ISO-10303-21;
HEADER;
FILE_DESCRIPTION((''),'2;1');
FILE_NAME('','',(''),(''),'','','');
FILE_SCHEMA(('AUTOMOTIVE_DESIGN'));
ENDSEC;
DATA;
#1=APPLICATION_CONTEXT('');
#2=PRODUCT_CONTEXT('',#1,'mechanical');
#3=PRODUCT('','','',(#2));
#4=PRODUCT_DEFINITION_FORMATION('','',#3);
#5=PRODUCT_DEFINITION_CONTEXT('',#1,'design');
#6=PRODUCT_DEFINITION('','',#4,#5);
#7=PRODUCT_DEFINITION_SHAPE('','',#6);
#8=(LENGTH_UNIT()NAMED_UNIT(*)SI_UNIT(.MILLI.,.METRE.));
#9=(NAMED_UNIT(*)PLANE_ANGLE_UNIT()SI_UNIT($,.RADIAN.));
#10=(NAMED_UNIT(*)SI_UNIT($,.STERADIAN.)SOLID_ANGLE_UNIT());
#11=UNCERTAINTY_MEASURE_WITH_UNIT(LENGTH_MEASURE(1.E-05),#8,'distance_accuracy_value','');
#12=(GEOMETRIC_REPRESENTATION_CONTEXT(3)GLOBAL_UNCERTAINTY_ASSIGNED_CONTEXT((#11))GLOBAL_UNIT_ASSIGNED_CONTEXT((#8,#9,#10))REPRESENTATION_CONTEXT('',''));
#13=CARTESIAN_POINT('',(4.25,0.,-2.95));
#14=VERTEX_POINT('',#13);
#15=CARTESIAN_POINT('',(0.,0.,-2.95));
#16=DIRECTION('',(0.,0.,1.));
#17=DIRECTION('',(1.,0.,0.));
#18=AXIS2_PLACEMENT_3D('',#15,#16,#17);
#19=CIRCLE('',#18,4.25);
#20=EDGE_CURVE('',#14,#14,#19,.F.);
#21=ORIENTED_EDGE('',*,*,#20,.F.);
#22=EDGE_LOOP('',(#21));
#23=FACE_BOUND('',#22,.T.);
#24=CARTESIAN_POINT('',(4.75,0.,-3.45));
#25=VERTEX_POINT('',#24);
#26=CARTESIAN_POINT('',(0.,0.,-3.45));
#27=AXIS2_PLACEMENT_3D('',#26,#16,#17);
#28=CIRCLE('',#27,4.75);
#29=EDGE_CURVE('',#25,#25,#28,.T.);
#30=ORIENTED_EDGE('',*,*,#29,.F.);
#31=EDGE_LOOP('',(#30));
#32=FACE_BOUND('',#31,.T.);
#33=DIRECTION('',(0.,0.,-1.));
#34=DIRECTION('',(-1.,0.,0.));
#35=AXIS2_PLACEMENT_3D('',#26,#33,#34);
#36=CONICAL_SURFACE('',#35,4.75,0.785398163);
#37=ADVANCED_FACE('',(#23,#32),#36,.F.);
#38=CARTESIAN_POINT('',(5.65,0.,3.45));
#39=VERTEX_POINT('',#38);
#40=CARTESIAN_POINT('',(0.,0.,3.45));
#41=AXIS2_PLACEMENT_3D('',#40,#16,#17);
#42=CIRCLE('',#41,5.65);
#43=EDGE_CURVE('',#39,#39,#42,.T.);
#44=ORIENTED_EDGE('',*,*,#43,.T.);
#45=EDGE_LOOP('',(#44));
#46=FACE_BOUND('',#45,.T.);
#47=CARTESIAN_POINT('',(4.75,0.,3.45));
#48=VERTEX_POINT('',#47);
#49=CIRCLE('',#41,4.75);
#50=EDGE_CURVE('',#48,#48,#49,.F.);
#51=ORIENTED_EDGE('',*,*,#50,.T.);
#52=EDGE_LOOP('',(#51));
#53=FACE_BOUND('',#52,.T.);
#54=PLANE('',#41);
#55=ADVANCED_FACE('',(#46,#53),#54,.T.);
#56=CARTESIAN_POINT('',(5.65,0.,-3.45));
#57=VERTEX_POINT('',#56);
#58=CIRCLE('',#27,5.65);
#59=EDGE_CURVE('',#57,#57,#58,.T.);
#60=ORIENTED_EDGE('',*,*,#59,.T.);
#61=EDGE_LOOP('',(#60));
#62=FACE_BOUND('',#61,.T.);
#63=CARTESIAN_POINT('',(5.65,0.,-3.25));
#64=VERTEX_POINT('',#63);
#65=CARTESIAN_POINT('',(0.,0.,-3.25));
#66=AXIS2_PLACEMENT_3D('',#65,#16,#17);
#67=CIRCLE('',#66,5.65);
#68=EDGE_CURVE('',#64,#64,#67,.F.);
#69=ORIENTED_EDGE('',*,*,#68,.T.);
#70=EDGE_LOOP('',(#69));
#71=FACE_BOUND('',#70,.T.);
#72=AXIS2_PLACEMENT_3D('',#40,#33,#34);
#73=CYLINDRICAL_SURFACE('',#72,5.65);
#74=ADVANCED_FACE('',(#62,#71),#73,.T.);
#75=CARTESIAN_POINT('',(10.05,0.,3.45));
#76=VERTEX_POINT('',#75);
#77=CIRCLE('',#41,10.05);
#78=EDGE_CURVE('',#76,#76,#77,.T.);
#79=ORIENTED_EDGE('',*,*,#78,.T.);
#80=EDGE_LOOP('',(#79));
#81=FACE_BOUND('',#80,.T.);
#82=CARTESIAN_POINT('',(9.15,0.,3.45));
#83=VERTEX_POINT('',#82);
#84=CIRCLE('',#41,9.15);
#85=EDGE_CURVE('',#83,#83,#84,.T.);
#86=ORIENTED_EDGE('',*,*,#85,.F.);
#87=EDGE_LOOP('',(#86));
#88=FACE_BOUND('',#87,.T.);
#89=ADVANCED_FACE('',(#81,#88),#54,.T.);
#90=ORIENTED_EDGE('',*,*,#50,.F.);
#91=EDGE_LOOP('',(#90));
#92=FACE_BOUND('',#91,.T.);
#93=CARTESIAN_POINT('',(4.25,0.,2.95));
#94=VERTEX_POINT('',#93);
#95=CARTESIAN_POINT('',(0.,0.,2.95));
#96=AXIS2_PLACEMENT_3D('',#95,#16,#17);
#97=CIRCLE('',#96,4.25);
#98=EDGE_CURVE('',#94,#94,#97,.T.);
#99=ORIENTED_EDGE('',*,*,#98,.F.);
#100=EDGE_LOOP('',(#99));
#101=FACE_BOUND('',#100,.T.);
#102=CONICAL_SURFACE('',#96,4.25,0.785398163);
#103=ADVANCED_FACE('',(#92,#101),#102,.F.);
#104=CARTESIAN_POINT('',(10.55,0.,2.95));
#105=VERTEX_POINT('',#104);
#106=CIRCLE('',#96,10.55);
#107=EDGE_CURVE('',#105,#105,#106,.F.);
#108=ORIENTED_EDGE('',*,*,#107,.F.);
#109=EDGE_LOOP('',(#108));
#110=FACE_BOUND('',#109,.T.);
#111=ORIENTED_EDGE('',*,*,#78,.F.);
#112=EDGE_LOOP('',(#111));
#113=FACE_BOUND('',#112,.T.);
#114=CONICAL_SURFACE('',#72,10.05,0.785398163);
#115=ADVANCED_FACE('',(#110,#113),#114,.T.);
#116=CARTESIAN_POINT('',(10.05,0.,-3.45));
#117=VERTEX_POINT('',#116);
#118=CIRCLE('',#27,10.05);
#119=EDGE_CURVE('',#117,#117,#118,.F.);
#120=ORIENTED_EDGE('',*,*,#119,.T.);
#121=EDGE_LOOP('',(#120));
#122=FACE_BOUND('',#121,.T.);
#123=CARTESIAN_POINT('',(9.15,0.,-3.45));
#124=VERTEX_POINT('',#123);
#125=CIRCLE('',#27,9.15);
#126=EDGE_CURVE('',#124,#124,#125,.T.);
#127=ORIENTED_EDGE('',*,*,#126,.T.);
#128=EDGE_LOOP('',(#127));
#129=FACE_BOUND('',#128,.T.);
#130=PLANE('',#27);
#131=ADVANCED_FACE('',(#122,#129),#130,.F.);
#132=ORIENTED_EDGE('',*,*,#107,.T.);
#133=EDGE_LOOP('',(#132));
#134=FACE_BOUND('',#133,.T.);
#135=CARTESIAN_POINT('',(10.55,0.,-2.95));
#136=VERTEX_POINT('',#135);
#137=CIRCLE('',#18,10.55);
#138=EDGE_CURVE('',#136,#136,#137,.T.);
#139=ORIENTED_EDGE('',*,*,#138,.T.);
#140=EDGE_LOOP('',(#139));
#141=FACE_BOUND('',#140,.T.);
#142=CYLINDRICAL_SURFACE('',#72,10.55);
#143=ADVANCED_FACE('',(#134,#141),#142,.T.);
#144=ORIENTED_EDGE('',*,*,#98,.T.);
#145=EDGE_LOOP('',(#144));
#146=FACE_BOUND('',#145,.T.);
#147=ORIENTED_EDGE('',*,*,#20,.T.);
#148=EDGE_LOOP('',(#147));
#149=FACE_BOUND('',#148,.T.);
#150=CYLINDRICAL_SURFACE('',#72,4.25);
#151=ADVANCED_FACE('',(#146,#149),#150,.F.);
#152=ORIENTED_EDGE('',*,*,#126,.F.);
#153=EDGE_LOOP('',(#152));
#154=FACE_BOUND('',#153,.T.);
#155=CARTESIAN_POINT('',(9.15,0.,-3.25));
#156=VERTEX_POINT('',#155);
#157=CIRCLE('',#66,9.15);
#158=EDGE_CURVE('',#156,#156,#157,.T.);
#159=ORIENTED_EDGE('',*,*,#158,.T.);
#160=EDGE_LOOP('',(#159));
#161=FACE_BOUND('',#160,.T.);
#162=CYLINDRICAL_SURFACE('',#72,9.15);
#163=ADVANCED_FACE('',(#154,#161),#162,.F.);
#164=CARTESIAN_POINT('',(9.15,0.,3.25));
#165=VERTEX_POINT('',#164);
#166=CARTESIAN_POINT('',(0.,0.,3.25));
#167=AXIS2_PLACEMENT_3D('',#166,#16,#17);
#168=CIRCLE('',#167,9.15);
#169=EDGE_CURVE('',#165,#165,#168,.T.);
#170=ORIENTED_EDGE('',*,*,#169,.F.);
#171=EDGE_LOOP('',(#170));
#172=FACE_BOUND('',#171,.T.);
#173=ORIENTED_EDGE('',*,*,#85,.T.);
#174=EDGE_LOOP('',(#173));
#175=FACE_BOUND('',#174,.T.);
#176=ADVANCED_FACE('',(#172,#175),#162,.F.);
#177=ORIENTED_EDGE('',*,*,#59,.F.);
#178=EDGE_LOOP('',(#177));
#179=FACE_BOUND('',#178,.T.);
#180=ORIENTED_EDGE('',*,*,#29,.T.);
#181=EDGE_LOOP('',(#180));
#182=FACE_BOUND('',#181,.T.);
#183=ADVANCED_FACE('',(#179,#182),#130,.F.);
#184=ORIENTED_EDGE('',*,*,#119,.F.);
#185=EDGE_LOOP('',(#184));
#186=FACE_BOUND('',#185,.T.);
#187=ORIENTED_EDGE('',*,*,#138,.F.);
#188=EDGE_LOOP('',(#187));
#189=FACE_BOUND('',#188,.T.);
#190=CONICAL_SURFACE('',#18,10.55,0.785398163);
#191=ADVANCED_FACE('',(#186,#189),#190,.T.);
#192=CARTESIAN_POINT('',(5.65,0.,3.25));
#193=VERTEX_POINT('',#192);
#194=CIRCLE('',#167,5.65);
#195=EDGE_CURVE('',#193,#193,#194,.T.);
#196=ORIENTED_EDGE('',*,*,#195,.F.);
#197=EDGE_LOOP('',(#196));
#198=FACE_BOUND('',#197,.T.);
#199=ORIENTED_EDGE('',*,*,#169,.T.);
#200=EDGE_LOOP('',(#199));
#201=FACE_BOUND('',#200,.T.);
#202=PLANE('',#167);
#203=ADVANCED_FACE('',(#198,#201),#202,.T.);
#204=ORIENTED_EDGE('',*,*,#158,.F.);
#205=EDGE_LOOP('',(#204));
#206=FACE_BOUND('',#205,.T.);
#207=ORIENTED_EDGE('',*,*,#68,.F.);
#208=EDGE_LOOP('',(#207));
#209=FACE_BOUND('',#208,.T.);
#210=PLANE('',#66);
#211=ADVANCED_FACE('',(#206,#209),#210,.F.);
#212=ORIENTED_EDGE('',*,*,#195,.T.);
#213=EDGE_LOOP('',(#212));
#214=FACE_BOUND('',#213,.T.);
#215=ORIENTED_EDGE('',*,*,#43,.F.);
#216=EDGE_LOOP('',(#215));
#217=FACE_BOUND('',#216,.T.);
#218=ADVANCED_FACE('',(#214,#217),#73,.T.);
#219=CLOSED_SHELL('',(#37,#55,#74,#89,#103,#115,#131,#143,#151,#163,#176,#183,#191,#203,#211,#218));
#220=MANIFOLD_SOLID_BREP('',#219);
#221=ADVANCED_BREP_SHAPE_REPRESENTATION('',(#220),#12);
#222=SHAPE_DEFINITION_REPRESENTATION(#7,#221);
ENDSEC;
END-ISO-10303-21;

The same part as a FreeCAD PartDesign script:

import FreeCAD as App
import Part
import Sketcher

V = App.Vector


def edges_at(feature, points):
    """Names of the edges that pass closest to the given points."""
    edges = feature.Shape.Edges
    near = lambda p: min(range(len(edges)), key=lambda i: edges[i].distToShape(Part.Vertex(*p))[0])
    return sorted({f"Edge{near(p) + 1}" for p in points})

doc = App.newDocument("Part")
body = doc.addObject("PartDesign::Body", "Body")

sketch1 = doc.addObject("Sketcher::SketchObject", "Sketch")
body.addObject(sketch1)
sketch1.AttachmentSupport = (doc.XY_Plane, [""])
sketch1.MapMode = "FlatFace"
sketch1.addGeometry(Part.Circle(V(0, 0, 0), V(0, 0, 1), 10.55), False)
sketch1.addGeometry(Part.Circle(V(0, 0, 0), V(0, 0, 1), 9.15), False)
sketch1.addConstraint(Sketcher.Constraint("Coincident", 0, 3, -1, 1))
sketch1.addConstraint(Sketcher.Constraint("Coincident", 1, 3, -1, 1))
sketch1.addConstraint(Sketcher.Constraint("Diameter", 0, 21.1))
sketch1.addConstraint(Sketcher.Constraint("Diameter", 1, 18.3))
pad1 = doc.addObject("PartDesign::Pad", "Pad")
body.addObject(pad1)
pad1.Profile = sketch1
pad1.Length = 6.9
pad1.Midplane = True
body2 = doc.addObject("PartDesign::Body", "Body001")

sketch2 = doc.addObject("Sketcher::SketchObject", "Sketch001")
body2.addObject(sketch2)
sketch2.AttachmentSupport = (doc.getObject("XY_Plane001"), [""])
sketch2.MapMode = "FlatFace"
sketch2.addGeometry(Part.Circle(V(0, 0, 0), V(0, 0, 1), 5.65), False)
sketch2.addGeometry(Part.Circle(V(0, 0, 0), V(0, 0, 1), 4.25), False)
sketch2.addConstraint(Sketcher.Constraint("Coincident", 0, 3, -1, 1))
sketch2.addConstraint(Sketcher.Constraint("Coincident", 1, 3, -1, 1))
sketch2.addConstraint(Sketcher.Constraint("Diameter", 0, 11.3))
sketch2.addConstraint(Sketcher.Constraint("Diameter", 1, 8.5))
pad2 = doc.addObject("PartDesign::Pad", "Pad001")
body2.addObject(pad2)
pad2.Profile = sketch2
pad2.Length = 6.9
pad2.Midplane = True
body.AllowCompound = True
doc.recompute()

boolean = doc.addObject("PartDesign::Boolean", "Boolean")
body.addObject(boolean)
boolean.Type = "Fuse"
boolean.addObjects([body2])

sketch3 = doc.addObject("Sketcher::SketchObject", "Sketch002")
body.addObject(sketch3)
sketch3.AttachmentSupport = (doc.XY_Plane, [""])
sketch3.MapMode = "FlatFace"
sketch3.addGeometry(Part.Circle(V(0, 0, 0), V(0, 0, 1), 9.15), False)
sketch3.addGeometry(Part.Circle(V(0, 0, 0), V(0, 0, 1), 5.65), False)
sketch3.addConstraint(Sketcher.Constraint("Coincident", 0, 3, -1, 1))
sketch3.addConstraint(Sketcher.Constraint("Coincident", 1, 3, -1, 1))
sketch3.addConstraint(Sketcher.Constraint("Diameter", 0, 18.3))
sketch3.addConstraint(Sketcher.Constraint("Diameter", 1, 11.3))
pad3 = doc.addObject("PartDesign::Pad", "Pad002")
body.addObject(pad3)
pad3.Profile = sketch3
pad3.Length = 6.5
pad3.Midplane = True
doc.recompute()

chamfer = doc.addObject("PartDesign::Chamfer", "Chamfer")
body.addObject(chamfer)
chamfer.Base = (pad3, edges_at(pad3, [
    (-4.25, 0, -3.45),
    (-4.25, 0, 3.45),
    (-10.55, 0, -3.45),
    (-10.55, 0, 3.45),
]))
chamfer.Size = 0.5

doc.recompute()
